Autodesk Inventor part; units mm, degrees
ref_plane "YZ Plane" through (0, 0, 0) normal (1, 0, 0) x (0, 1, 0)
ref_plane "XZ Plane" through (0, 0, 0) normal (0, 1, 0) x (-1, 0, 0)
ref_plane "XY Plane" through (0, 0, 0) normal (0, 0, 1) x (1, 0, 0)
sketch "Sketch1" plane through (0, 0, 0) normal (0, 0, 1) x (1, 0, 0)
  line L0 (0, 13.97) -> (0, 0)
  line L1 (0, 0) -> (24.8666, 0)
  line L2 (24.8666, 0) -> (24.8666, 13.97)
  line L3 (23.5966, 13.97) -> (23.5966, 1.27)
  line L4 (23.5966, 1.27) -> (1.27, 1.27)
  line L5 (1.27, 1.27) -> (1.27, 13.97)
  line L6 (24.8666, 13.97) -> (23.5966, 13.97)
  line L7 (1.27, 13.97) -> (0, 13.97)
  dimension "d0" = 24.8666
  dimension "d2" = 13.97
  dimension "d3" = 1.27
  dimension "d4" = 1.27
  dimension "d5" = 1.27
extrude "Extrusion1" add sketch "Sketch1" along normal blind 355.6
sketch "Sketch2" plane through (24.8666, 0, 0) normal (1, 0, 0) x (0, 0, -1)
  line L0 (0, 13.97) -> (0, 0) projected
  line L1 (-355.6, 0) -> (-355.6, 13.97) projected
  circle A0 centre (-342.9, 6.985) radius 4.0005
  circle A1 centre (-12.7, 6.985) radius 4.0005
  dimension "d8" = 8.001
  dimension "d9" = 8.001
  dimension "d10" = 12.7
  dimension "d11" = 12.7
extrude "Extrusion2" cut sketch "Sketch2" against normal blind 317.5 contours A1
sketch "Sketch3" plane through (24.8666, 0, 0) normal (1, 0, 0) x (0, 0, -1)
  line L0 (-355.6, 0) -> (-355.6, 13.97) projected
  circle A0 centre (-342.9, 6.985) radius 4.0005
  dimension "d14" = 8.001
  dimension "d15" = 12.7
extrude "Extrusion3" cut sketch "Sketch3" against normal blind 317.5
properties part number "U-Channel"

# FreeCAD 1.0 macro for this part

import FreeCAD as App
import Part
import Sketcher

V = App.Vector
Q = App.Units.Quantity


def add_polygon(sketch, points):
    """Adds a closed chain of lines whose ends are joined by coincident constraints."""
    first, n = sketch.GeometryCount, len(points)
    for a, b in zip(points, points[1:] + points[:1]):
        sketch.addGeometry(Part.LineSegment(App.Vector(*a, 0), App.Vector(*b, 0)), False)
    for i in range(n):
        sketch.addConstraint(Sketcher.Constraint("Coincident", first + i, 2, first + (i + 1) % n, 1))

doc = App.newDocument("Part")
body = doc.addObject("PartDesign::Body", "Body")

# Sketch on XY plane
sketch1 = body.newObject("Sketcher::SketchObject", "Sketch")
sketch1.AttachmentSupport = (doc.getObject("XY_Plane"), [""])
sketch1.MapMode = "FlatFace"
add_polygon(sketch1, [(1.3, 14), (0, 14), (0, 0), (24.9, 0), (24.9, 14), (23.6, 14), (23.6, 1.3), (1.3, 1.3)])  # lines 0-7
sketch1.addConstraint([
    Sketcher.Constraint("Horizontal", 0),
    Sketcher.Constraint("Vertical", 1),
    Sketcher.Constraint("Horizontal", 2),
    Sketcher.Constraint("Vertical", 3),
    Sketcher.Constraint("Horizontal", 4),
    Sketcher.Constraint("Vertical", 5),
    Sketcher.Constraint("Horizontal", 6),
    Sketcher.Constraint("Vertical", 7),
    Sketcher.Constraint("Coincident", 1, 2, -1, 1),
    Sketcher.Constraint("Horizontal", 0, 2, 3, 2),
    Sketcher.Constraint("Equal", 0, 4),
    Sketcher.Constraint("DistanceX", 0, 2, 0, 1, Q("0.05 in")),
    Sketcher.Constraint("DistanceY", 1, 2, 1, 1, Q("0.55 in")),
    Sketcher.Constraint("DistanceX", 2, 1, 2, 2, Q("0.979 in")),
    Sketcher.Constraint("DistanceY", -1, 1, 5, 2, Q("0.05 in")),
])
pad1 = body.newObject("PartDesign::Pad", "Pad")
pad1.Profile = sketch1
pad1.Length = Q("14 in")

# Sketch on YZ plane
sketch2 = body.newObject("Sketcher::SketchObject", "Sketch001")
sketch2.AttachmentSupport = (doc.getObject("YZ_Plane"), [""])
sketch2.MapMode = "FlatFace"
sketch2.AttachmentOffset = App.Placement(V(0, 0, 0.979 * 25.4), App.Rotation())
sketch2.addGeometry(Part.Circle(V(7, 12.7, 0), V(0, 0, 1), 4), False)
sketch2.addConstraint([
    Sketcher.Constraint("Diameter", 0, Q("0.315 in")),
    Sketcher.Constraint("DistanceY", -1, 1, 0, 3, Q("0.5 in")),
    Sketcher.Constraint("DistanceX", -1, 1, 0, 3, Q("0.275 in")),
])
pocket1 = body.newObject("PartDesign::Pocket", "Pocket")
pocket1.Profile = sketch2
pocket1.Length = Q("12.5 in")

# Sketch on YZ plane
sketch3 = body.newObject("Sketcher::SketchObject", "Sketch002")
sketch3.AttachmentSupport = (doc.getObject("YZ_Plane"), [""])
sketch3.MapMode = "FlatFace"
sketch3.AttachmentOffset = App.Placement(V(0, 0, 0.979 * 25.4), App.Rotation())
sketch3.addGeometry(Part.Circle(V(7, 342.9, 0), V(0, 0, 1), 4), False)
sketch3.addConstraint([
    Sketcher.Constraint("Diameter", 0, Q("0.315 in")),
    Sketcher.Constraint("DistanceY", -1, 1, 0, 3, Q("13.5 in")),
    Sketcher.Constraint("DistanceX", -1, 1, 0, 3, Q("0.275 in")),
])
pocket2 = body.newObject("PartDesign::Pocket", "Pocket001")
pocket2.Profile = sketch3
pocket2.Length = Q("12.5 in")

doc.recompute()
